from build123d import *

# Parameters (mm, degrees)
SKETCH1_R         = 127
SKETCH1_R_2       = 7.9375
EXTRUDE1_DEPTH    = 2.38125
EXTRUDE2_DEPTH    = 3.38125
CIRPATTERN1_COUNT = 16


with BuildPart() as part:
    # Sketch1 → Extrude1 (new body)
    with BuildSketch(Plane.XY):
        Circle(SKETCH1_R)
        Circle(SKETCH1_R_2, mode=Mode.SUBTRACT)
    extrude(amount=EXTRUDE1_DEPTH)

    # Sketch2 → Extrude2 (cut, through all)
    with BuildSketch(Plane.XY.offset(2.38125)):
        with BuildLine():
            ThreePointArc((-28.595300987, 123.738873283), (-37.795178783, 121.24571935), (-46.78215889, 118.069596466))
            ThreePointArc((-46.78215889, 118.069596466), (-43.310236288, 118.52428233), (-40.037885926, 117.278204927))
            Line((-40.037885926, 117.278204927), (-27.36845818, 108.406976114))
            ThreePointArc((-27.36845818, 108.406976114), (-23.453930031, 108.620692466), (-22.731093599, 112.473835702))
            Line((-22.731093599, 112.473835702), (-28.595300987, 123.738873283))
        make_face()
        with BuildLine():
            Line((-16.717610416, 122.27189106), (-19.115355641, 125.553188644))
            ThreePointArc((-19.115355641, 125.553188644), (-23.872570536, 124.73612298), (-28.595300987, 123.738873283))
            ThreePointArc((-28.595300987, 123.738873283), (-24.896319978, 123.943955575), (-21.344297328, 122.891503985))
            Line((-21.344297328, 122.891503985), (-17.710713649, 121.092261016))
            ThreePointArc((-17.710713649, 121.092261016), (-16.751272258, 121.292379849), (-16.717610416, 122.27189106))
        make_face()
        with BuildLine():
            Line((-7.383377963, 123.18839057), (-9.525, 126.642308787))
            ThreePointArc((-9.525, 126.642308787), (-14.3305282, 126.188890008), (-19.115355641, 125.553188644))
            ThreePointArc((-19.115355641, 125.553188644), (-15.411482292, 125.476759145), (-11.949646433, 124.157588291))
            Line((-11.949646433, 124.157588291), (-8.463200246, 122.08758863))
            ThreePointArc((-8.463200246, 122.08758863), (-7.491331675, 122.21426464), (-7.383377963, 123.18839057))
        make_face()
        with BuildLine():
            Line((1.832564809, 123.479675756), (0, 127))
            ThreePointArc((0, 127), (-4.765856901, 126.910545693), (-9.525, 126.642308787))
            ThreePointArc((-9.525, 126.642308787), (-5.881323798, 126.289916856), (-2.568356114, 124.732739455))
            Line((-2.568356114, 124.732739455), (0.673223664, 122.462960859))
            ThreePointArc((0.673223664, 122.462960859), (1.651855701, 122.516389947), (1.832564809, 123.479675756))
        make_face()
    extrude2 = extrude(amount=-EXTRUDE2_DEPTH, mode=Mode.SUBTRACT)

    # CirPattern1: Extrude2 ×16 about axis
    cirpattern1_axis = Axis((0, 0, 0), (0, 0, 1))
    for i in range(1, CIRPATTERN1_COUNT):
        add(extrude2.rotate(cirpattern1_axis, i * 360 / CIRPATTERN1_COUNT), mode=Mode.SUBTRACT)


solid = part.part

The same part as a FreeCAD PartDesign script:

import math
import FreeCAD as App
import Part
import Sketcher
Q = App.Units.Quantity

doc = App.newDocument("Part")
body = doc.addObject("PartDesign::Body", "Body")

sketch1 = body.newObject("Sketcher::SketchObject", "Sketch")
sketch1.AttachmentSupport = (doc.getObject("XY_Plane"), [""])
sketch1.MapMode = "FlatFace"
sketch1.addGeometry(Part.Circle(App.Vector(0, 0, 0), App.Vector(0, 0, 1), 127), False)
sketch1.addGeometry(Part.Circle(App.Vector(0, 0, 0), App.Vector(0, 0, 1), 7.9375), False)
sketch1.addConstraint(Sketcher.Constraint("Coincident", 0, 3, -1, 1))
sketch1.addConstraint(Sketcher.Constraint("Coincident", 1, 3, -1, 1))
sketch1.addConstraint(Sketcher.Constraint("Diameter", 0, Q("10 in")))
sketch1.addConstraint(Sketcher.Constraint("Diameter", 1, Q("0.625 in")))
pad1 = body.newObject("PartDesign::Pad", "Pad")
pad1.Profile = sketch1
pad1.Length = Q("0.09375 in")

sketch2 = body.newObject("Sketcher::SketchObject", "Sketch001")
sketch2.AttachmentSupport = (doc.getObject("XY_Plane"), [""])
sketch2.MapMode = "FlatFace"
sketch2.AttachmentOffset = App.Placement(App.Vector(0, 0, 0.09375 * 25.4), App.Rotation())
sketch2.addGeometry(Part.ArcOfCircle(Part.Circle(App.Vector(0, 0, 0), App.Vector(0, 0, 1), 127), math.radians(103.012278), math.radians(111.614723)), False)
sketch2.addGeometry(Part.ArcOfCircle(Part.Circle(App.Vector(-44.144683, 111.413091, 0), App.Vector(0, 0, 1), 7.159982), math.radians(55), math.radians(111.614723)), False)
sketch2.addGeometry(Part.LineSegment(App.Vector(-40.037886, 117.278205, 0), App.Vector(-27.368458, 108.406976, 0)), False)
sketch2.addGeometry(Part.ArcOfCircle(Part.Circle(App.Vector(-25.547353, 111.007784, 0), App.Vector(0, 0, 1), 3.175), math.radians(-125), math.radians(27.5)), False)
sketch2.addGeometry(Part.LineSegment(App.Vector(-22.731094, 112.473836, 0), App.Vector(-28.595301, 123.738873, 0)), False)
sketch2.addGeometry(Part.LineSegment(App.Vector(-16.71761, 122.271891, 0), App.Vector(-19.115356, 125.553189, 0)), False)
sketch2.addGeometry(Part.ArcOfCircle(Part.Circle(App.Vector(0, 0.000001, 0), App.Vector(0, 0, 1), 126.999999), math.radians(98.65675), math.radians(103.012278)), False)
sketch2.addGeometry(Part.ArcOfCircle(Part.Circle(App.Vector(-26.154553, 113.177159, 0), App.Vector(0, 0, 1), 10.840067), math.radians(63.65675), math.radians(103.012278)), False)
sketch2.addGeometry(Part.LineSegment(App.Vector(-21.344297, 122.891504, 0), App.Vector(-17.710714, 121.092261, 0)), False)
sketch2.addGeometry(Part.ArcOfCircle(Part.Circle(App.Vector(-17.358489, 121.803581, 0), App.Vector(0, 0, 1), 0.79375), math.radians(-116.34325), math.radians(36.15675)), False)
sketch2.addGeometry(Part.LineSegment(App.Vector(-7.383378, 123.188391, 0), App.Vector(-9.525, 126.642309, 0)), False)
sketch2.addGeometry(Part.ArcOfCircle(Part.Circle(App.Vector(0, 0, 0), App.Vector(0, 0, 1), 127), math.radians(94.301222), math.radians(98.65675)), False)
sketch2.addGeometry(Part.ArcOfCircle(Part.Circle(App.Vector(-17.483767, 114.836614, 0), App.Vector(0, 0, 1), 10.840067), math.radians(59.301222), math.radians(98.65675)), False)
sketch2.addGeometry(Part.LineSegment(App.Vector(-11.949646, 124.157588, 0), App.Vector(-8.4632, 122.087589, 0)), False)
sketch2.addGeometry(Part.ArcOfCircle(Part.Circle(App.Vector(-8.057971, 122.770105, 0), App.Vector(0, 0, 1), 0.79375), math.radians(-120.698778), math.radians(31.801222)), False)
sketch2.addGeometry(Part.LineSegment(App.Vector(1.832565, 123.479676, 0), App.Vector(0, 127, 0)), False)
sketch2.addGeometry(Part.ArcOfCircle(Part.Circle(App.Vector(0, 0.000001, 0), App.Vector(0, 0, 1), 126.999999), math.radians(90), math.radians(94.301222)), False)
sketch2.addGeometry(Part.ArcOfCircle(Part.Circle(App.Vector(-8.720548, 115.946498, 0), App.Vector(0, 0, 1), 10.72602), math.radians(55), math.radians(94.301222)), False)
sketch2.addGeometry(Part.LineSegment(App.Vector(-2.568356, 124.732739, 0), App.Vector(0.673224, 122.462961, 0)), False)
sketch2.addGeometry(Part.ArcOfCircle(Part.Circle(App.Vector(1.1285, 123.113163, 0), App.Vector(0, 0, 1), 0.79375), math.radians(-125), math.radians(27.5)), False)
sketch2.addConstraint(Sketcher.Constraint("Tangent", 0, 2, 1, 2))
sketch2.addConstraint(Sketcher.Constraint("Tangent", 1, 1, 2, 1))
sketch2.addConstraint(Sketcher.Constraint("Tangent", 2, 2, 3, 1))
sketch2.addConstraint(Sketcher.Constraint("Tangent", 3, 2, 4, 1))
sketch2.addConstraint(Sketcher.Constraint("Coincident", 4, 2, 0, 1))
sketch2.addConstraint(Sketcher.Constraint("Coincident", 5, 2, 6, 1))
sketch2.addConstraint(Sketcher.Constraint("Tangent", 6, 2, 7, 2))
sketch2.addConstraint(Sketcher.Constraint("Tangent", 7, 1, 8, 1))
sketch2.addConstraint(Sketcher.Constraint("Tangent", 8, 2, 9, 1))
sketch2.addConstraint(Sketcher.Constraint("Tangent", 9, 2, 5, 1))
sketch2.addConstraint(Sketcher.Constraint("Coincident", 10, 2, 11, 1))
sketch2.addConstraint(Sketcher.Constraint("Tangent", 11, 2, 12, 2))
sketch2.addConstraint(Sketcher.Constraint("Tangent", 12, 1, 13, 1))
sketch2.addConstraint(Sketcher.Constraint("Tangent", 13, 2, 14, 1))
sketch2.addConstraint(Sketcher.Constraint("Tangent", 14, 2, 10, 1))
sketch2.addConstraint(Sketcher.Constraint("Coincident", 15, 2, 16, 1))
sketch2.addConstraint(Sketcher.Constraint("Tangent", 16, 2, 17, 2))
sketch2.addConstraint(Sketcher.Constraint("Tangent", 17, 1, 18, 1))
sketch2.addConstraint(Sketcher.Constraint("Tangent", 18, 2, 19, 1))
sketch2.addConstraint(Sketcher.Constraint("Tangent", 19, 2, 15, 1))
sketch2.addConstraint(Sketcher.Constraint("Coincident", 0, 3, -1, 1))
sketch2.addConstraint(Sketcher.Constraint("Coincident", 6, 3, -1, 1))
sketch2.addConstraint(Sketcher.Constraint("Coincident", 11, 3, -1, 1))
sketch2.addConstraint(Sketcher.Constraint("Coincident", 16, 3, -1, 1))
sketch2.addConstraint(Sketcher.Constraint("Coincident", 6, 2, 4, 2))
sketch2.addConstraint(Sketcher.Constraint("Coincident", 11, 2, 5, 2))
sketch2.addConstraint(Sketcher.Constraint("Coincident", 16, 2, 10, 2))
sketch2.addConstraint(Sketcher.Constraint("Equal", 7, 12))
sketch2.addConstraint(Sketcher.Constraint("Equal", 9, 14))
sketch2.addConstraint(Sketcher.Constraint("Equal", 14, 19))
sketch2.addConstraint(Sketcher.Constraint("PointOnObject", 15, 2, -2))
sketch2.addConstraint(Sketcher.Constraint("Parallel", 4, 15))
sketch2.addConstraint(Sketcher.Constraint("Parallel", 2, 18))
sketch2.addConstraint(Sketcher.Constraint("Equal", 5, 10))
sketch2.addConstraint(Sketcher.Constraint("Equal", 8, 13))
sketch2.addConstraint(Sketcher.Constraint("Radius", 0, Q("5 in")))
sketch2.addConstraint(Sketcher.Constraint("Angle", 2, Q("-35 deg")))
sketch2.addConstraint(Sketcher.Constraint("Radius", 3, Q("0.125 in")))
sketch2.addConstraint(Sketcher.Constraint("Radius", 9, Q("0.03125 in")))
sketch2.addConstraint(Sketcher.Constraint("Distance", 4, Q("0.5 in")))
sketch2.addConstraint(Sketcher.Constraint("Angle", 4, Q("117.5 deg")))
sketch2.addConstraint(Sketcher.Constraint("Distance", 5, Q("0.16 in")))
sketch2.addConstraint(Sketcher.Constraint("Distance", 15, Q("0.15625 in")))
sketch2.addConstraint(Sketcher.Constraint("DistanceX", 10, 2, -1, 1, Q("0.375 in")))
sketch2.addConstraint(Sketcher.Constraint("Radius", 1, Q("7.159982 mm")))
sketch2.addConstraint(Sketcher.Constraint("Radius", 7, Q("10.840067 mm")))
sketch2.addConstraint(Sketcher.Constraint("DistanceX", 4, 2, -1, 1, Q("28.595301 mm")))
sketch2.addConstraint(Sketcher.Constraint("DistanceX", 13, 2, -1, 1, Q("8.4632 mm")))
sketch2.addConstraint(Sketcher.Constraint("DistanceY", 13, 2, 12, 1, Q("2.07 mm")))
pocket1 = body.newObject("PartDesign::Pocket", "Pocket")
pocket1.Profile = sketch2
pocket1.Type = "ThroughAll"
doc.recompute()

polarpattern = body.newObject("PartDesign::PolarPattern", "PolarPattern")
polarpattern.Originals = [pocket1]
polarpattern.Axis = (doc.getObject("Z_Axis"), [""])
polarpattern.Angle = 360
polarpattern.Occurrences = 16
body.Tip = polarpattern

doc.recompute()
